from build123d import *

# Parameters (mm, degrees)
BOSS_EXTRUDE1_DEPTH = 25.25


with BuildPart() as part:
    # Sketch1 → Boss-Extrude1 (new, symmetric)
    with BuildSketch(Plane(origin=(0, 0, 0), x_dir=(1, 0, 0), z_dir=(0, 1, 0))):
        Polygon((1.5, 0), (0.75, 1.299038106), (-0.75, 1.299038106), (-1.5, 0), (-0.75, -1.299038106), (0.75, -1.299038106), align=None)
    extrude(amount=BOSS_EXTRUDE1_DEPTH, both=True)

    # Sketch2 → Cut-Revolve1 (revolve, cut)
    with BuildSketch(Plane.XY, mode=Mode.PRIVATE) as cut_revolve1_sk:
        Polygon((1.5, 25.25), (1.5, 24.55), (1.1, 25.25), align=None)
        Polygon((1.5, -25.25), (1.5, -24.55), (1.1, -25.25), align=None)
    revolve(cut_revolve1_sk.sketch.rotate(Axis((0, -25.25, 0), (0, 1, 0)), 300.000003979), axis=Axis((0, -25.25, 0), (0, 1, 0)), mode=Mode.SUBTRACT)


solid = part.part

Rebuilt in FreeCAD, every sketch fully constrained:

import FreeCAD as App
import Part
import Sketcher
Q = App.Units.Quantity


def add_polygon(sketch, points):
    """Adds a closed chain of lines whose ends are joined by coincident constraints."""
    first, n = sketch.GeometryCount, len(points)
    for a, b in zip(points, points[1:] + points[:1]):
        sketch.addGeometry(Part.LineSegment(App.Vector(*a, 0), App.Vector(*b, 0)), False)
    for i in range(n):
        sketch.addConstraint(Sketcher.Constraint("Coincident", first + i, 2, first + (i + 1) % n, 1))

doc = App.newDocument("Part")
body = doc.addObject("PartDesign::Body", "Body")

sketch1 = body.newObject("Sketcher::SketchObject", "Sketch")
sketch1.AttachmentSupport = (doc.getObject("XZ_Plane"), [""])
sketch1.MapMode = "FlatFace"
add_polygon(sketch1, [(1.5, 0), (0.75, -1.299038), (-0.75, -1.299038), (-1.5, 0), (-0.75, 1.299038), (0.75, 1.299038)])
sketch1.addConstraint([
    Sketcher.Constraint("Horizontal", 1),
    Sketcher.Constraint("Horizontal", 4),
    Sketcher.Constraint("Symmetric", 0, 2, 3, 2, -1, 1),
    Sketcher.Constraint("Symmetric", 2, 2, 5, 2, -1, 1),
    Sketcher.Constraint("PointOnObject", 2, 2, -1),
    Sketcher.Constraint("Parallel", 2, 5),
    Sketcher.Constraint("Vertical", 1, 2, 3, 2),
    Sketcher.Constraint("Angle", 0, Q("-120 deg")),
    Sketcher.Constraint("DistanceX", 1, 2, 1, 1, 1.5),
    Sketcher.Constraint("DistanceX", 2, 2, 5, 2, 3.0),
])
pad1 = body.newObject("PartDesign::Pad", "Pad")
pad1.Profile = sketch1
pad1.Length = 50.5
pad1.Midplane = True

sketch2 = body.newObject("Sketcher::SketchObject", "Sketch001")
sketch2.AttachmentSupport = (doc.getObject("XY_Plane"), [""])
sketch2.MapMode = "FlatFace"
add_polygon(sketch2, [(1.5, 24.55), (1.5, 25.25), (1.1, 25.25)])
add_polygon(sketch2, [(1.5, -25.25), (1.5, -24.55), (1.1, -25.25)])
sketch2.addConstraint([
    Sketcher.Constraint("Vertical", 0),
    Sketcher.Constraint("Horizontal", 1),
    Sketcher.Constraint("Vertical", 3),
    Sketcher.Constraint("Horizontal", 5),
    Sketcher.Constraint("Symmetric", 2, 2, 3, 2, -1),
    Sketcher.Constraint("Symmetric", 1, 2, 4, 2, -1),
    Sketcher.Constraint("DistanceX", 1, 2, 1, 1, 0.4),
    Sketcher.Constraint("DistanceY", 0, 1, 0, 2, 0.7),
    Sketcher.Constraint("DistanceX", -1, 1, 0, 2, 1.5),
    Sketcher.Constraint("DistanceY", 3, 2, 2, 2, 49.1),
])
groove = body.newObject("PartDesign::Groove", "Groove")
groove.Profile = sketch2
groove.ReferenceAxis = (sketch2, ["V_Axis"])
groove.Angle = 360

doc.recompute()
